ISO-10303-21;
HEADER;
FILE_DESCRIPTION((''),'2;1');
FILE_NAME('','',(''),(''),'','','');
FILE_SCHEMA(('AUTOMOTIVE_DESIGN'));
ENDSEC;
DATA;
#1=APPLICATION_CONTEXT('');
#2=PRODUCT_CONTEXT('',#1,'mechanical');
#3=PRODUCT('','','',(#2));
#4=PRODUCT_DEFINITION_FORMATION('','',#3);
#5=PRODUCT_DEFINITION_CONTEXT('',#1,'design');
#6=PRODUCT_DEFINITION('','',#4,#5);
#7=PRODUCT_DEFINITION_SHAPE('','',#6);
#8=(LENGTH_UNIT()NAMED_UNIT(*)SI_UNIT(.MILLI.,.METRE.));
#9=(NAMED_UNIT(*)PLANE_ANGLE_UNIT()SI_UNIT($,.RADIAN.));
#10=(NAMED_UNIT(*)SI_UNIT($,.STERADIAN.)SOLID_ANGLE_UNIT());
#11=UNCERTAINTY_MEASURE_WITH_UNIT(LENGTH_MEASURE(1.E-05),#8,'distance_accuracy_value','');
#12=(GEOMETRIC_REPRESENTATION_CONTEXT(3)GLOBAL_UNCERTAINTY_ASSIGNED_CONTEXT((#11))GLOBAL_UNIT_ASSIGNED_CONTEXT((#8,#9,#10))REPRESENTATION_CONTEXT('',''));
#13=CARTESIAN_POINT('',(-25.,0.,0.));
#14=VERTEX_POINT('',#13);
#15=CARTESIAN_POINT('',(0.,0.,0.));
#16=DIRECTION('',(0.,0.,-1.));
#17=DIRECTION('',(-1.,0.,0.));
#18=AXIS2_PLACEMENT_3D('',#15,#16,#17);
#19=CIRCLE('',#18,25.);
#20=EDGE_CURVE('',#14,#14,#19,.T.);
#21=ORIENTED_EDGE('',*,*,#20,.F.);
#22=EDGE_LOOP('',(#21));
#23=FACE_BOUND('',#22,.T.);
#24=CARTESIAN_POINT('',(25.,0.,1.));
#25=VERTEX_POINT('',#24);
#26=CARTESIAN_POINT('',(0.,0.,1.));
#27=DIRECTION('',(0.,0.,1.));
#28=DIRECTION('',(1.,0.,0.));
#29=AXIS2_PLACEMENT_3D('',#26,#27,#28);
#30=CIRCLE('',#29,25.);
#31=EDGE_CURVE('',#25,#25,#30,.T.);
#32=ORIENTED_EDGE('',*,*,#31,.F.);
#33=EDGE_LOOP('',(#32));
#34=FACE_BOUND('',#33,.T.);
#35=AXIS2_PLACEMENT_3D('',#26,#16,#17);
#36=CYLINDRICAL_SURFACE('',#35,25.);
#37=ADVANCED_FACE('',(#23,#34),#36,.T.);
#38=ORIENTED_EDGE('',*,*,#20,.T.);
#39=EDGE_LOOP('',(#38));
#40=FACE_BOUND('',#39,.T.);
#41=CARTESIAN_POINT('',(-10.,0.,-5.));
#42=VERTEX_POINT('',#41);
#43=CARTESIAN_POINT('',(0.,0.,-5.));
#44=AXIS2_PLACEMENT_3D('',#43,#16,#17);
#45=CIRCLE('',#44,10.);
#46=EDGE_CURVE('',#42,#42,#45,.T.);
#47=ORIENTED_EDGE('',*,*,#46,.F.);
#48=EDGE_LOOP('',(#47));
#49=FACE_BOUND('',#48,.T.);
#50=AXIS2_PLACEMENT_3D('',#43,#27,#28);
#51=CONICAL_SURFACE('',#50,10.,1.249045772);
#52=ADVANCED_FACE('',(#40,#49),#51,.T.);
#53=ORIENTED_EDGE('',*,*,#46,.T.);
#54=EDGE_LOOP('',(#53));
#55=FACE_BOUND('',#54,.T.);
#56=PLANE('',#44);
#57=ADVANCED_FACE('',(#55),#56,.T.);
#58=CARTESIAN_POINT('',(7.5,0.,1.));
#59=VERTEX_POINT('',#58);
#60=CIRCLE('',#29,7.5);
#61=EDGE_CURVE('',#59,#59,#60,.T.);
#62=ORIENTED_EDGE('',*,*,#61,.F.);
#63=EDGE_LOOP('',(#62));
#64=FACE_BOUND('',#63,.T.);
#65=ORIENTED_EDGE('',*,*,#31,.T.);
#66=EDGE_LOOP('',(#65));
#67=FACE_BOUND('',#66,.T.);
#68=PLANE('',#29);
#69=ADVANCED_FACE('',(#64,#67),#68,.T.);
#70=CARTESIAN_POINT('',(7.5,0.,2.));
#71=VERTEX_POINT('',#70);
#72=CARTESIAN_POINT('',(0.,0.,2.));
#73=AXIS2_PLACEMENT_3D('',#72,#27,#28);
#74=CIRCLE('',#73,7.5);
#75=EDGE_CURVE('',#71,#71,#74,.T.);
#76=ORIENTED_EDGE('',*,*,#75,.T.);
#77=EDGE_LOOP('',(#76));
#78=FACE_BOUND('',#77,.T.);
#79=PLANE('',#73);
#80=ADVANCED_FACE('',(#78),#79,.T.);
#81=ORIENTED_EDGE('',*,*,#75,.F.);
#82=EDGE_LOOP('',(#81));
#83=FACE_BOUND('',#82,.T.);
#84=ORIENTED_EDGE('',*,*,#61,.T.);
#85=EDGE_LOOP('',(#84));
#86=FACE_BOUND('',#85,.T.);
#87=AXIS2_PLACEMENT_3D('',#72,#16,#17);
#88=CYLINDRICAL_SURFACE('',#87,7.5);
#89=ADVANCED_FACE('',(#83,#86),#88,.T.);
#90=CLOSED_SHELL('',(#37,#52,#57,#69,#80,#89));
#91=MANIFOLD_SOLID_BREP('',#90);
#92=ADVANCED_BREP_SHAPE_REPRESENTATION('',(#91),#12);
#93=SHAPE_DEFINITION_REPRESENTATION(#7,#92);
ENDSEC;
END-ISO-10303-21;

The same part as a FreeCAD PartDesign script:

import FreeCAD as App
import Part
import Sketcher

doc = App.newDocument("Part")
body = doc.addObject("PartDesign::Body", "Body")

sketch1 = body.newObject("Sketcher::SketchObject", "Sketch")
sketch1.AttachmentSupport = (doc.getObject("XY_Plane"), [""])
sketch1.MapMode = "FlatFace"
sketch1.addGeometry(Part.Circle(App.Vector(0, 0, 0), App.Vector(0, 0, 1), 25), False)
sketch1.addConstraint([
    Sketcher.Constraint("Coincident", 0, 3, -1, 1),
    Sketcher.Constraint("Diameter", 0, 50.0),
])
pad1 = body.newObject("PartDesign::Pad", "Pad")
pad1.Profile = sketch1
pad1.Length = 1

sketch2 = body.newObject("Sketcher::SketchObject", "Sketch001")
sketch2.AttachmentSupport = (doc.getObject("XY_Plane"), [""])
sketch2.MapMode = "FlatFace"
sketch2.addGeometry(Part.Circle(App.Vector(0, 0, 0), App.Vector(0, 0, 1), 25), False)
sketch2.addConstraint([
    Sketcher.Constraint("Coincident", 0, 3, -1, 1),
    Sketcher.Constraint("Diameter", 0, 50.0),
])

sketch3 = body.newObject("Sketcher::SketchObject", "Sketch002")
sketch3.AttachmentSupport = (doc.getObject("XY_Plane"), [""])
sketch3.MapMode = "FlatFace"
sketch3.AttachmentOffset = App.Placement(App.Vector(0, 0, -5), App.Rotation())
sketch3.addGeometry(Part.Circle(App.Vector(0, 0, 0), App.Vector(0, 0, 1), 10), False)
sketch3.addConstraint([
    Sketcher.Constraint("Coincident", 0, 3, -1, 1),
    Sketcher.Constraint("Diameter", 0, 20.0),
])

additiveloft = body.newObject("PartDesign::AdditiveLoft", "AdditiveLoft")
additiveloft.Profile = sketch2
additiveloft.Sections = [sketch3]

sketch4 = body.newObject("Sketcher::SketchObject", "Sketch003")
sketch4.AttachmentSupport = (doc.getObject("XY_Plane"), [""])
sketch4.MapMode = "FlatFace"
sketch4.AttachmentOffset = App.Placement(App.Vector(0, 0, 1), App.Rotation())
sketch4.addGeometry(Part.Circle(App.Vector(0, 0, 0), App.Vector(0, 0, 1), 8), False)
sketch4.addConstraint([
    Sketcher.Constraint("Coincident", 0, 3, -1, 1),
    Sketcher.Constraint("Diameter", 0, 15.0),
])
pad2 = body.newObject("PartDesign::Pad", "Pad001")
pad2.Profile = sketch4
pad2.Length = 1

doc.recompute()
